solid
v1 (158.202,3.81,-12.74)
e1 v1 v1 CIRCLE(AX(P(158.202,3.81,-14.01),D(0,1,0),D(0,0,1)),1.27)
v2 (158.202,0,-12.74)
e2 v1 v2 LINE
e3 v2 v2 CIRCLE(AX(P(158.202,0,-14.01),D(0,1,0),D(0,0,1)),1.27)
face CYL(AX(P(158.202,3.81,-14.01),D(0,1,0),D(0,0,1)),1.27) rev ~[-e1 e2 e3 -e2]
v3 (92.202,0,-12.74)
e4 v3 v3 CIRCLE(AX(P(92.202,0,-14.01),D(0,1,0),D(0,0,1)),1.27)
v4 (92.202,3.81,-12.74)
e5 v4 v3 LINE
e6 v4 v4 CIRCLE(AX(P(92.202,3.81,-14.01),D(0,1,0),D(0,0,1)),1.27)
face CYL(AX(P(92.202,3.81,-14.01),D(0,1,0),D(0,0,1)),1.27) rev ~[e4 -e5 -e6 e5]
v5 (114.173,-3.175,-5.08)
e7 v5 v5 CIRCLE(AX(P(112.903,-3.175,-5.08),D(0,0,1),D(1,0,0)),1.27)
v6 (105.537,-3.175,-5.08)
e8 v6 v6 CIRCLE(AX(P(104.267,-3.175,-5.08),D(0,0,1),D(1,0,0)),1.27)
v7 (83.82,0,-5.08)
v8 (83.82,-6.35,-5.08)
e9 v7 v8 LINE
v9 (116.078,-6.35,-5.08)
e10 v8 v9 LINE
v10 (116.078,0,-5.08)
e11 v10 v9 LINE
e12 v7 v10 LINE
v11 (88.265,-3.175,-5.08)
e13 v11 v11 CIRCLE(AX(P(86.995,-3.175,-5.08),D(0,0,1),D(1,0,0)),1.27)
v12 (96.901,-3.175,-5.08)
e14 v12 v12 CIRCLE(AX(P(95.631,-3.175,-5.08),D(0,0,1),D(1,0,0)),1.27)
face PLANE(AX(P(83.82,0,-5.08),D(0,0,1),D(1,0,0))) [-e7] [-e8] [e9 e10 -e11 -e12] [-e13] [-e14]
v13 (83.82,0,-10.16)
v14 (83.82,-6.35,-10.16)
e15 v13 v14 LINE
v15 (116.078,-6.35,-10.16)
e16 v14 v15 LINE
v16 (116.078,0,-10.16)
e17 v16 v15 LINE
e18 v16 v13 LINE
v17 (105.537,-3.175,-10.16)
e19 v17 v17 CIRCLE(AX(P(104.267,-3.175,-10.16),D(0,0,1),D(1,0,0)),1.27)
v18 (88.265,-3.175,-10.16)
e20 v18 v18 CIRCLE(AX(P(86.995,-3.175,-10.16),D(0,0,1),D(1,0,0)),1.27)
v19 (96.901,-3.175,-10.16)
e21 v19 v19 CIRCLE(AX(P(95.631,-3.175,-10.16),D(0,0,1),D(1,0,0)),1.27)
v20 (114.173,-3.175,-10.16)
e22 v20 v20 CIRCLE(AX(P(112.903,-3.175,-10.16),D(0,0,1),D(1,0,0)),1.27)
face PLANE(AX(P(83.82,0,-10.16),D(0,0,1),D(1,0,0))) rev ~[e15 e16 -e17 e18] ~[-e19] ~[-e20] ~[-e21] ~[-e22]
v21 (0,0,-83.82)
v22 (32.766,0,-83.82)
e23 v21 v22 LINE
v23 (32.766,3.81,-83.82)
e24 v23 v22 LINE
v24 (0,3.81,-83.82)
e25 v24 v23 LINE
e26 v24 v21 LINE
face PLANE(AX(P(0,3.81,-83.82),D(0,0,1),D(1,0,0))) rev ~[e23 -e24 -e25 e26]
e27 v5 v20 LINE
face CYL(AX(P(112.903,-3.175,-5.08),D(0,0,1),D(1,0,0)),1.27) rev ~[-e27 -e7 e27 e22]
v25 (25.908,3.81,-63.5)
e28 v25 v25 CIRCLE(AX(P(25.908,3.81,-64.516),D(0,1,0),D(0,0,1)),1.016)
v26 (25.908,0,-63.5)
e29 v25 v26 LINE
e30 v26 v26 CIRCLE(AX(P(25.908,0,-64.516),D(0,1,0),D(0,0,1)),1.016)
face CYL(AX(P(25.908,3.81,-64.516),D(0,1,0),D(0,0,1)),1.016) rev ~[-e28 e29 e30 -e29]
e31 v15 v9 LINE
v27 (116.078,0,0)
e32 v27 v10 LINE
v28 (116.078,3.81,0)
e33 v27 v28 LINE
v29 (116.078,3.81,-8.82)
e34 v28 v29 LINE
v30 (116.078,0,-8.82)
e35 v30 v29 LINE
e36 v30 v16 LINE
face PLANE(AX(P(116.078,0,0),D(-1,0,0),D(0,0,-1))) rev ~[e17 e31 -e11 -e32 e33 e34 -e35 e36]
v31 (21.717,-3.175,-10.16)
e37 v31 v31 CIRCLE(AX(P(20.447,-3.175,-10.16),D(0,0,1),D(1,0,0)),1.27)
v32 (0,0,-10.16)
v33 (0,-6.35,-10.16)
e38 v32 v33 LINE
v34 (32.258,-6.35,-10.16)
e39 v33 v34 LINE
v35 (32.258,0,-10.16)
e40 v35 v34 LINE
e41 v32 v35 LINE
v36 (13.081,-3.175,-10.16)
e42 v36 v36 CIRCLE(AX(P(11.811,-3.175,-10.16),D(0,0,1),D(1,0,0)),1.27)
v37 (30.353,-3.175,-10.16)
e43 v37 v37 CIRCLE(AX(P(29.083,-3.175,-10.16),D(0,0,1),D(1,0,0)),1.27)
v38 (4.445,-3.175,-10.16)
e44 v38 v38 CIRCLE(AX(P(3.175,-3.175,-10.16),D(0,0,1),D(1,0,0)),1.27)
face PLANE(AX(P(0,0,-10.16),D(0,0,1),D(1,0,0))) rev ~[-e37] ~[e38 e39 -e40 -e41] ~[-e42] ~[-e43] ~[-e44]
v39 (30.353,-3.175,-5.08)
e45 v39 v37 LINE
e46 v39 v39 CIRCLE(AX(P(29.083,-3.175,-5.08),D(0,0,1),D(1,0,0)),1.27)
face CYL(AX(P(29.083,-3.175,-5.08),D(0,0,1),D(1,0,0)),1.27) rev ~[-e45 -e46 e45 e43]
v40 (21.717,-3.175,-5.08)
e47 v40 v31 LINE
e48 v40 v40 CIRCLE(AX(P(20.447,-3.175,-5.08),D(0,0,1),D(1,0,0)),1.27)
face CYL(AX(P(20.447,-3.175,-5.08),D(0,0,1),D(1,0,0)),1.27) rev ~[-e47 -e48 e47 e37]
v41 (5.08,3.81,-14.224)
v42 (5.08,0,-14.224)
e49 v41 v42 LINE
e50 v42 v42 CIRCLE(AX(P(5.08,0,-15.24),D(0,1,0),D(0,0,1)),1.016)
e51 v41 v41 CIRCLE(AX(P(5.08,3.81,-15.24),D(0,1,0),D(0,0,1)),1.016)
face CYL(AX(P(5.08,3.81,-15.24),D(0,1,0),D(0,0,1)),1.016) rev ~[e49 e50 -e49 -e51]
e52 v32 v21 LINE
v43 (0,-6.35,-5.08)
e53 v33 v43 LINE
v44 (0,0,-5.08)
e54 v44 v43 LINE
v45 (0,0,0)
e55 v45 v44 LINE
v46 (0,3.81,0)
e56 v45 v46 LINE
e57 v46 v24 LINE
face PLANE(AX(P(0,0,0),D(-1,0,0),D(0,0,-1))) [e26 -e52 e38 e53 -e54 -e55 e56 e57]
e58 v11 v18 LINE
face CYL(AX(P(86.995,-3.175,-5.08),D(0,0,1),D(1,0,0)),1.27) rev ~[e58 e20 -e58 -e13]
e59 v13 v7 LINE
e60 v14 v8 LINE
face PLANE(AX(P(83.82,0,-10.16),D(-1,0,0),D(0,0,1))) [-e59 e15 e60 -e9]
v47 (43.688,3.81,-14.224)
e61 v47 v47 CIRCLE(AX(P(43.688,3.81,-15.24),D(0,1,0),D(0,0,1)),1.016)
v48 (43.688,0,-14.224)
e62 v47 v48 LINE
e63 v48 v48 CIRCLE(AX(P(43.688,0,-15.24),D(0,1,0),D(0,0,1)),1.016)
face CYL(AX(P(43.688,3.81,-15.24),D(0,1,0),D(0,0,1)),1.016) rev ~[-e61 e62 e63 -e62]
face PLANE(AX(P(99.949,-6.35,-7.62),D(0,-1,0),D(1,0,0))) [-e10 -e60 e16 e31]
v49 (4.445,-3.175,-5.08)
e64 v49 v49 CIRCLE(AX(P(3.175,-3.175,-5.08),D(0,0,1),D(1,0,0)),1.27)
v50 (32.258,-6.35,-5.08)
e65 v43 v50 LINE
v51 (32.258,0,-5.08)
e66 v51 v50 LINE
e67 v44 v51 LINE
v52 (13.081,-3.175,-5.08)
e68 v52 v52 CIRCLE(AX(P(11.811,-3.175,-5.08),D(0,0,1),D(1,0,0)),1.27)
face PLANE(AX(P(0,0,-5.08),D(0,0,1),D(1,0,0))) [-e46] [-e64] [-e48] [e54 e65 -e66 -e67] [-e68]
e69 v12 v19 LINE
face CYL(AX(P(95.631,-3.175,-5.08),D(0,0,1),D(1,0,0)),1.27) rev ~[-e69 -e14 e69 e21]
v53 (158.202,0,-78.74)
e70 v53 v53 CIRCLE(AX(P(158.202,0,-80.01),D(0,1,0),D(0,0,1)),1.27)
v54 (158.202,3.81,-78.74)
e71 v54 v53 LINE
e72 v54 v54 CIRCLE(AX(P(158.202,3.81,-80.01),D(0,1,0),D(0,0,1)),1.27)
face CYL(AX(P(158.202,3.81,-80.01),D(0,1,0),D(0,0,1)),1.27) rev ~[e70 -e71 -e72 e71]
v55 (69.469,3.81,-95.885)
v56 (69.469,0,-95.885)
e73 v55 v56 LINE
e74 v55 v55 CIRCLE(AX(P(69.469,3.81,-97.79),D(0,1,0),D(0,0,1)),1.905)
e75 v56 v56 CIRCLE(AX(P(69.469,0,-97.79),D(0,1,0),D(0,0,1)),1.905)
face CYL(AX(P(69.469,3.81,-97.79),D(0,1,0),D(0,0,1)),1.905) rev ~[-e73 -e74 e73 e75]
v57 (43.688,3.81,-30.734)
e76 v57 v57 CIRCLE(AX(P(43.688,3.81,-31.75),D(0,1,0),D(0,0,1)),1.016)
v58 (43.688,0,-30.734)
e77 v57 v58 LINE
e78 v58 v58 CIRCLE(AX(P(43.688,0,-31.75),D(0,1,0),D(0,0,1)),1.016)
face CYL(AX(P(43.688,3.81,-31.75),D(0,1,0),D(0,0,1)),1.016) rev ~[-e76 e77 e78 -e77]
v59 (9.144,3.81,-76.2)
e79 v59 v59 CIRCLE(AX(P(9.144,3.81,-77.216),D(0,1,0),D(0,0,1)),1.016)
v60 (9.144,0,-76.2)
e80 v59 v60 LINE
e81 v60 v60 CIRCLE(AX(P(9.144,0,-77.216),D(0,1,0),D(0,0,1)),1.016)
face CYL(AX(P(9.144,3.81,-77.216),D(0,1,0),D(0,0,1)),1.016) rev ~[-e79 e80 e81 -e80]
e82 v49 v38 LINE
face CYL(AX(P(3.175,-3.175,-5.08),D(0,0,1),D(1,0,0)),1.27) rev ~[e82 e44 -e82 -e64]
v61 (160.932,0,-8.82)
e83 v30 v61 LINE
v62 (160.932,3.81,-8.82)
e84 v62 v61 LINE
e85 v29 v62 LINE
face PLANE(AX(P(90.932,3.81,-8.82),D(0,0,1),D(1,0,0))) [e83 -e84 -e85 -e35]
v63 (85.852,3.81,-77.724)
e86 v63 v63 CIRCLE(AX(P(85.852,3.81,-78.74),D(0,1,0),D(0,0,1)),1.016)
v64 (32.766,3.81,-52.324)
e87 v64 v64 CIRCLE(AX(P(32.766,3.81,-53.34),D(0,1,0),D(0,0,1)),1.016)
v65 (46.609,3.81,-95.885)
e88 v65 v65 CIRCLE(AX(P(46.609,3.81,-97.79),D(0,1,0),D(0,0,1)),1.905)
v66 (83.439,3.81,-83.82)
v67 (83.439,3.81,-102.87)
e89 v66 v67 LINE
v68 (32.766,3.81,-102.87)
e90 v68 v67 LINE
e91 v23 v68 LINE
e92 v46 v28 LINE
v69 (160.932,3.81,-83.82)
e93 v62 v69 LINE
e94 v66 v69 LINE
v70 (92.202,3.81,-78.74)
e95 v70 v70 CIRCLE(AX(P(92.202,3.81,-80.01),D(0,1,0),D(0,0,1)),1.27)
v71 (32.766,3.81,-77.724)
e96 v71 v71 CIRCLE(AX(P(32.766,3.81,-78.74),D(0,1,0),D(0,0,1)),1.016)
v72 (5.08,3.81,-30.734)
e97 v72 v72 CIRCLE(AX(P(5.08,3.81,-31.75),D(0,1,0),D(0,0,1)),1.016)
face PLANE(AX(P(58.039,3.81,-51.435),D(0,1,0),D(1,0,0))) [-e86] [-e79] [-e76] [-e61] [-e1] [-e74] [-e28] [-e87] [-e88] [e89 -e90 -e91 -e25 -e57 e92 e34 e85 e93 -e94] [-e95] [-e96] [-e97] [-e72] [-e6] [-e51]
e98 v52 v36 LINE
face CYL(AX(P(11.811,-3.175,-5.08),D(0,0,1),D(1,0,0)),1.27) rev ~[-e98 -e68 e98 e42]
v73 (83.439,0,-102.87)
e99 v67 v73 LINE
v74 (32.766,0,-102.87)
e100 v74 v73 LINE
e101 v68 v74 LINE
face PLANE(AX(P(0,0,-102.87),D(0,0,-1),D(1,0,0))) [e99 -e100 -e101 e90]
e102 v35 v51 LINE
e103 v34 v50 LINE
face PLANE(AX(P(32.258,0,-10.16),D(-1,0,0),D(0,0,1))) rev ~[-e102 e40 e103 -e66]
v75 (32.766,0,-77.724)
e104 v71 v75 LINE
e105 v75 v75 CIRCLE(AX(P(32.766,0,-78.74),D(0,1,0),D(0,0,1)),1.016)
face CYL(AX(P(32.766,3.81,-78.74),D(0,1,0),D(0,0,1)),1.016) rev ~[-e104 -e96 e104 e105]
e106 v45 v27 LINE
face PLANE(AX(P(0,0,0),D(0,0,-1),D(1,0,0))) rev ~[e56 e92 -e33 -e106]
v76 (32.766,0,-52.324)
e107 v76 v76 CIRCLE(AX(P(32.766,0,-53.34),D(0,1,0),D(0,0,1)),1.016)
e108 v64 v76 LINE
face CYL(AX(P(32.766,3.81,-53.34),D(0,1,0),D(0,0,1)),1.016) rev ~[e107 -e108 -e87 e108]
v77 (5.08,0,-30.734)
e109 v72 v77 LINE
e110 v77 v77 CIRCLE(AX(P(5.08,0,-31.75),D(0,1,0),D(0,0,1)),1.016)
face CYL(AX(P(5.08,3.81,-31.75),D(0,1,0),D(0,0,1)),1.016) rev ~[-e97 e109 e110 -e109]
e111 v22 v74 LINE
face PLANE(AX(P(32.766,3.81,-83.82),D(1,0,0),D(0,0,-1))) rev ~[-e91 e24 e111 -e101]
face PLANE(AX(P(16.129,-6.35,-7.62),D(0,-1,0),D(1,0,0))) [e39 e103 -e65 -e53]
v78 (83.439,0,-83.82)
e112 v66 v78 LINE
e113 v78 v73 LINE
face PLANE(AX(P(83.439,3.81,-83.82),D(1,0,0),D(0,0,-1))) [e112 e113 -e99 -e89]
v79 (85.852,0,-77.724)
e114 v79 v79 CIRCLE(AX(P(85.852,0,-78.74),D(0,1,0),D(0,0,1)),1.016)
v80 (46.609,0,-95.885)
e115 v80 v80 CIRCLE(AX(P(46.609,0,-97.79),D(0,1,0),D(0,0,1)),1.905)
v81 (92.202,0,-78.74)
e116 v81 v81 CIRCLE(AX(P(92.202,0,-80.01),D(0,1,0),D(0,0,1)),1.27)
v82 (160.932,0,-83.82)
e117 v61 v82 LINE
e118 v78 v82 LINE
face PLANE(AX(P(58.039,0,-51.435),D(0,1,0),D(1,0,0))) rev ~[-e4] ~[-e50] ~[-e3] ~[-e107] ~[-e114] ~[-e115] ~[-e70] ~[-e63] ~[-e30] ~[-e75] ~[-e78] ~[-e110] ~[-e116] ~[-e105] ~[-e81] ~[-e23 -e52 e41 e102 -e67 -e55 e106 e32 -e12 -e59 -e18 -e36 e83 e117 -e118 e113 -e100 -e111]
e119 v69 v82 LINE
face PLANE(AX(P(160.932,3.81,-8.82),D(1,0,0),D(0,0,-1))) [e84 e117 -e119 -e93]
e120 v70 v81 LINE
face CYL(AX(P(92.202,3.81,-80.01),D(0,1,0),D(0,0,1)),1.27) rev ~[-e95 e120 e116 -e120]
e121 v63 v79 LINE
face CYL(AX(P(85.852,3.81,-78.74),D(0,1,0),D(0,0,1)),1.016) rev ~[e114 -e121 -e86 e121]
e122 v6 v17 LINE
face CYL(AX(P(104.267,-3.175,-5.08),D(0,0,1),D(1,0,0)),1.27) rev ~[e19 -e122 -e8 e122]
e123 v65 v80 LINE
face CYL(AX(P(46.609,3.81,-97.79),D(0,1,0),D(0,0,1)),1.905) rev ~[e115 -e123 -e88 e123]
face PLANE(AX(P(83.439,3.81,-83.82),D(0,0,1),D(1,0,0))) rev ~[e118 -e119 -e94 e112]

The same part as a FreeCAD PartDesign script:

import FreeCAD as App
import Part
import Sketcher
Q = App.Units.Quantity


def add_polygon(sketch, points):
    """Adds a closed chain of lines whose ends are joined by coincident constraints."""
    first, n = sketch.GeometryCount, len(points)
    for a, b in zip(points, points[1:] + points[:1]):
        sketch.addGeometry(Part.LineSegment(App.Vector(*a, 0), App.Vector(*b, 0)), False)
    for i in range(n):
        sketch.addConstraint(Sketcher.Constraint("Coincident", first + i, 2, first + (i + 1) % n, 1))

doc = App.newDocument("Part")
body = doc.addObject("PartDesign::Body", "Body")

# Sketch on XZ plane
sketch1 = body.newObject("Sketcher::SketchObject", "Sketch")
sketch1.AttachmentSupport = (doc.getObject("XZ_Plane"), [""])
sketch1.MapMode = "FlatFace"
add_polygon(sketch1, [(0, -102.87), (0, 0), (116.078, 0), (116.078, -102.87)])  # lines 0-3
sketch1.addConstraint([
    Sketcher.Constraint("Vertical", 0),
    Sketcher.Constraint("Horizontal", 1),
    Sketcher.Constraint("Vertical", 2),
    Sketcher.Constraint("Horizontal", 3),
    Sketcher.Constraint("Coincident", 0, 2, -1, 1),
    Sketcher.Constraint("DistanceX", 1, 1, 1, 2, Q("4.57 in")),
    Sketcher.Constraint("DistanceY", 0, 1, 0, 2, Q("4.05 in")),
])
pad1 = body.newObject("PartDesign::Pad", "Pad")
pad1.Profile = sketch1
pad1.Length = Q("0.15 in")
pad1.Reversed = True

# Sketch on XZ plane
sketch2 = body.newObject("Sketcher::SketchObject", "Sketch001")
sketch2.AttachmentSupport = (doc.getObject("XZ_Plane"), [""])
sketch2.MapMode = "FlatFace"
sketch2.AttachmentOffset = App.Placement(App.Vector(0, 0, -0.15 * 25.4), App.Rotation())
sketch2.addGeometry(Part.Circle(App.Vector(46.609, -97.79, 0), App.Vector(0, 0, 1), 1.905), False)  # 0
sketch2.addGeometry(Part.Circle(App.Vector(69.469, -97.79, 0), App.Vector(0, 0, 1), 1.905), False)  # 1
add_polygon(sketch2, [(0, -102.87), (0, -83.82), (32.766, -83.82), (32.766, -102.87)])  # lines 2-5
add_polygon(sketch2, [(83.439, -102.87), (83.439, -83.82), (116.078, -83.82), (116.078, -102.87)])  # lines 6-9
sketch2.addConstraint([
    Sketcher.Constraint("Vertical", 2),
    Sketcher.Constraint("Horizontal", 3),
    Sketcher.Constraint("Vertical", 4),
    Sketcher.Constraint("Horizontal", 5),
    Sketcher.Constraint("Vertical", 6),
    Sketcher.Constraint("Horizontal", 7),
    Sketcher.Constraint("Vertical", 8),
    Sketcher.Constraint("Horizontal", 9),
    Sketcher.Constraint("Equal", 0, 1),
    Sketcher.Constraint("PointOnObject", 2, 2, -2),
    Sketcher.Constraint("Horizontal", 0, 3, 1, 3),
    Sketcher.Constraint("Horizontal", 3, 2, 6, 2),
    Sketcher.Constraint("Horizontal", 5, 2, 8, 2),
    Sketcher.Constraint("Diameter", 0, Q("0.15 in")),
    Sketcher.Constraint("DistanceX", 3, 1, 3, 2, Q("1.29 in")),
    Sketcher.Constraint("DistanceY", 2, 1, 2, 2, Q("0.75 in")),
    Sketcher.Constraint("DistanceY", 2, 2, -1, 1, Q("3.3 in")),
    Sketcher.Constraint("DistanceX", 0, 3, 1, 3, Q("0.9 in")),
    Sketcher.Constraint("DistanceY", 4, 2, 0, 3, Q("0.2 in")),
    Sketcher.Constraint("DistanceX", 7, 1, 7, 2, Q("1.285 in")),
    Sketcher.Constraint("DistanceX", -1, 1, 7, 2, Q("4.57 in")),
    Sketcher.Constraint("DistanceX", 1, 3, 6, 2, Q("0.55 in")),
])
pocket1 = body.newObject("PartDesign::Pocket", "Pocket")
pocket1.Profile = sketch2
pocket1.Length = Q("0.15 in")
pocket1.Reversed = True

# Sketch on XZ plane
sketch3 = body.newObject("Sketcher::SketchObject", "Sketch002")
sketch3.AttachmentSupport = (doc.getObject("XZ_Plane"), [""])
sketch3.MapMode = "FlatFace"
add_polygon(sketch3, [(0, -5.08), (0, -10.16), (32.258, -10.16), (32.258, -5.08)])  # lines 0-3
add_polygon(sketch3, [(83.82, -5.08), (83.82, -10.16), (116.078, -10.16), (116.078, -5.08)])  # lines 4-7
sketch3.addConstraint([
    Sketcher.Constraint("Vertical", 0),
    Sketcher.Constraint("Horizontal", 1),
    Sketcher.Constraint("Vertical", 2),
    Sketcher.Constraint("Horizontal", 3),
    Sketcher.Constraint("Vertical", 4),
    Sketcher.Constraint("Horizontal", 5),
    Sketcher.Constraint("Vertical", 6),
    Sketcher.Constraint("Horizontal", 7),
    Sketcher.Constraint("PointOnObject", 0, 2, -2),
    Sketcher.Constraint("Horizontal", 1, 2, 4, 2),
    Sketcher.Constraint("Horizontal", 3, 2, 6, 2),
    Sketcher.Constraint("Equal", 3, 5),
    Sketcher.Constraint("DistanceY", 0, 2, 0, 1, Q("0.2 in")),
    Sketcher.Constraint("DistanceX", 1, 1, 1, 2, Q("1.27 in")),
    Sketcher.Constraint("DistanceY", 0, 2, -1, 1, Q("0.4 in")),
    Sketcher.Constraint("DistanceX", -1, 1, 4, 2, Q("3.3 in")),
])
pad2 = body.newObject("PartDesign::Pad", "Pad001")
pad2.Profile = sketch3
pad2.Length = Q("0.25 in")

# Sketch on XY plane
sketch4 = body.newObject("Sketcher::SketchObject", "Sketch003")
sketch4.AttachmentSupport = (doc.getObject("XY_Plane"), [""])
sketch4.MapMode = "FlatFace"
sketch4.AttachmentOffset = App.Placement(App.Vector(0, 0, -0.2 * 25.4), App.Rotation())
sketch4.addGeometry([
    Part.Circle(App.Vector(3.175, -3.175, 0), App.Vector(0, 0, 1), 1.27),  # 0
    Part.Circle(App.Vector(11.811, -3.175, 0), App.Vector(0, 0, 1), 1.27),  # 1
    Part.Circle(App.Vector(20.447, -3.175, 0), App.Vector(0, 0, 1), 1.27),  # 2
    Part.Circle(App.Vector(29.083, -3.175, 0), App.Vector(0, 0, 1), 1.27),  # 3
    Part.Circle(App.Vector(86.995, -3.175, 0), App.Vector(0, 0, 1), 1.27),  # 4
    Part.Circle(App.Vector(95.631, -3.175, 0), App.Vector(0, 0, 1), 1.27),  # 5
    Part.Circle(App.Vector(104.267, -3.175, 0), App.Vector(0, 0, 1), 1.27),  # 6
    Part.Circle(App.Vector(112.903, -3.175, 0), App.Vector(0, 0, 1), 1.27),  # 7
], False)
sketch4.addConstraint([
    Sketcher.Constraint("Equal", 0, 1),
    Sketcher.Constraint("Equal", 1, 2),
    Sketcher.Constraint("Equal", 2, 3),
    Sketcher.Constraint("Equal", 3, 4),
    Sketcher.Constraint("Equal", 4, 5),
    Sketcher.Constraint("Equal", 5, 6),
    Sketcher.Constraint("Equal", 6, 7),
    Sketcher.Constraint("Horizontal", 0, 3, 1, 3),
    Sketcher.Constraint("Horizontal", 1, 3, 2, 3),
    Sketcher.Constraint("Horizontal", 2, 3, 3, 3),
    Sketcher.Constraint("Horizontal", 3, 3, 4, 3),
    Sketcher.Constraint("Horizontal", 4, 3, 5, 3),
    Sketcher.Constraint("Horizontal", 5, 3, 6, 3),
    Sketcher.Constraint("Horizontal", 6, 3, 7, 3),
    Sketcher.Constraint("Diameter", 0, Q("0.1 in")),
    Sketcher.Constraint("DistanceX", 0, 3, 4, 3, Q("3.3 in")),
    Sketcher.Constraint("DistanceX", 1, 3, 5, 3, Q("3.3 in")),
    Sketcher.Constraint("DistanceX", 2, 3, 6, 3, Q("3.3 in")),
    Sketcher.Constraint("DistanceX", 3, 3, 7, 3, Q("3.3 in")),
    Sketcher.Constraint("DistanceX", 0, 3, 1, 3, Q("0.34 in")),
    Sketcher.Constraint("DistanceX", 1, 3, 2, 3, Q("0.34 in")),
    Sketcher.Constraint("DistanceX", 2, 3, 3, 3, Q("0.34 in")),
    Sketcher.Constraint("DistanceX", -1, 1, 0, 3, Q("0.125 in")),
    Sketcher.Constraint("DistanceY", 0, 3, -1, 1, Q("0.125 in")),
])
pocket2 = body.newObject("PartDesign::Pocket", "Pocket001")
pocket2.Profile = sketch4
pocket2.Length = Q("0.2 in")

# Sketch on XZ plane
sketch5 = body.newObject("Sketcher::SketchObject", "Sketch004")
sketch5.AttachmentSupport = (doc.getObject("XZ_Plane"), [""])
sketch5.MapMode = "FlatFace"
sketch5.AttachmentOffset = App.Placement(App.Vector(0, 0, -0.15 * 25.4), App.Rotation())
sketch5.addGeometry([
    Part.Circle(App.Vector(25.908, -64.516, 0), App.Vector(0, 0, 1), 1.016),  # 0
    Part.Circle(App.Vector(9.144, -77.216, 0), App.Vector(0, 0, 1), 1.016),  # 1
    Part.Circle(App.Vector(32.766, -78.74, 0), App.Vector(0, 0, 1), 1.016),  # 2
    Part.Circle(App.Vector(85.852, -78.74, 0), App.Vector(0, 0, 1), 1.016),  # 3
    Part.Circle(App.Vector(32.766, -53.34, 0), App.Vector(0, 0, 1), 1.016),  # 4
    Part.Circle(App.Vector(5.08, -31.75, 0), App.Vector(0, 0, 1), 1.016),  # 5
    Part.Circle(App.Vector(43.688, -31.75, 0), App.Vector(0, 0, 1), 1.016),  # 6
    Part.Circle(App.Vector(5.08, -15.24, 0), App.Vector(0, 0, 1), 1.016),  # 7
    Part.Circle(App.Vector(43.688, -15.24, 0), App.Vector(0, 0, 1), 1.016),  # 8
], False)
sketch5.addConstraint([
    Sketcher.Constraint("Equal", 0, 1),
    Sketcher.Constraint("Equal", 1, 2),
    Sketcher.Constraint("Equal", 2, 3),
    Sketcher.Constraint("Equal", 3, 4),
    Sketcher.Constraint("Equal", 4, 5),
    Sketcher.Constraint("Equal", 5, 6),
    Sketcher.Constraint("Equal", 6, 7),
    Sketcher.Constraint("Equal", 7, 8),
    Sketcher.Constraint("Horizontal", 2, 3, 3, 3),
    Sketcher.Constraint("Horizontal", 5, 3, 6, 3),
    Sketcher.Constraint("Horizontal", 7, 3, 8, 3),
    Sketcher.Constraint("Vertical", 2, 3, 4, 3),
    Sketcher.Constraint("Vertical", 5, 3, 7, 3),
    Sketcher.Constraint("Vertical", 6, 3, 8, 3),
    Sketcher.Constraint("Diameter", 0, Q("0.08 in")),
    Sketcher.Constraint("DistanceY", 2, 3, 4, 3, Q("1 in")),
    Sketcher.Constraint("DistanceY", 2, 3, -1, 1, Q("3.1 in")),
    Sketcher.Constraint("DistanceX", -1, 1, 5, 3, Q("0.2 in")),
    Sketcher.Constraint("DistanceY", 7, 3, -1, 1, Q("0.6 in")),
    Sketcher.Constraint("DistanceY", 1, 3, 0, 3, Q("0.5 in")),
    Sketcher.Constraint("DistanceX", 0, 3, 6, 3, Q("0.7 in")),
    Sketcher.Constraint("DistanceX", -1, 1, 0, 3, Q("1.02 in")),
    Sketcher.Constraint("DistanceY", 0, 3, -1, 1, Q("2.54 in")),
    Sketcher.Constraint("DistanceX", -1, 1, 1, 3, Q("0.36 in")),
    Sketcher.Constraint("DistanceX", -1, 1, 2, 3, Q("1.29 in")),
    Sketcher.Constraint("DistanceX", -1, 1, 3, 3, Q("3.38 in")),
    Sketcher.Constraint("DistanceY", 5, 3, -1, 1, Q("1.25 in")),
])
pocket3 = body.newObject("PartDesign::Pocket", "Pocket002")
pocket3.Profile = sketch5
pocket3.Length = Q("0.15 in")
pocket3.Reversed = True

# Sketch on XZ plane
sketch6 = body.newObject("Sketcher::SketchObject", "Sketch005")
sketch6.AttachmentSupport = (doc.getObject("XZ_Plane"), [""])
sketch6.MapMode = "FlatFace"
sketch6.AttachmentOffset = App.Placement(App.Vector(0, 0, -0.15 * 25.4), App.Rotation())
add_polygon(sketch6, [(90.932, -83.82), (90.932, -8.82), (160.932, -8.82), (160.932, -83.82)])  # lines 0-3
sketch6.addConstraint([
    Sketcher.Constraint("Vertical", 0),
    Sketcher.Constraint("Horizontal", 1),
    Sketcher.Constraint("Vertical", 2),
    Sketcher.Constraint("Horizontal", 3),
    Sketcher.Constraint("DistanceY", 2, 2, -1, 1, Q("3.3 in")),
    Sketcher.Constraint("DistanceX", -1, 1, 0, 2, Q("3.58 in")),
    Sketcher.Constraint("DistanceX", 1, 1, 1, 2, 70.0),
    Sketcher.Constraint("DistanceY", 0, 1, 0, 2, 75.0),
])
pad3 = body.newObject("PartDesign::Pad", "Pad002")
pad3.Profile = sketch6
pad3.Length = Q("0.15 in")

# Sketch on XZ plane
sketch7 = body.newObject("Sketcher::SketchObject", "Sketch006")
sketch7.AttachmentSupport = (doc.getObject("XZ_Plane"), [""])
sketch7.MapMode = "FlatFace"
sketch7.AttachmentOffset = App.Placement(App.Vector(0, 0, -0.15 * 25.4), App.Rotation())
sketch7.addGeometry([
    Part.Circle(App.Vector(92.202, -14.01, 0), App.Vector(0, 0, 1), 1.27),
    Part.Circle(App.Vector(92.202, -80.01, 0), App.Vector(0, 0, 1), 1.27),
    Part.Circle(App.Vector(158.202, -80.01, 0), App.Vector(0, 0, 1), 1.27),
    Part.Circle(App.Vector(158.202, -14.01, 0), App.Vector(0, 0, 1), 1.27),
], False)
sketch7.addConstraint([
    Sketcher.Constraint("Equal", 0, 1),
    Sketcher.Constraint("Equal", 1, 2),
    Sketcher.Constraint("Equal", 2, 3),
    Sketcher.Constraint("Horizontal", 1, 3, 2, 3),
    Sketcher.Constraint("Horizontal", 0, 3, 3, 3),
    Sketcher.Constraint("Vertical", 0, 3, 1, 3),
    Sketcher.Constraint("Vertical", 2, 3, 3, 3),
    Sketcher.Constraint("Diameter", 0, Q("0.1 in")),
    Sketcher.Constraint("DistanceX", -1, 1, 0, 3, Q("3.63 in")),
    Sketcher.Constraint("DistanceY", 1, 3, -1, 1, Q("3.15 in")),
    Sketcher.Constraint("DistanceY", 0, 3, -1, 1, 14.01),
    Sketcher.Constraint("DistanceX", -1, 1, 2, 3, 158.202),
])
pocket4 = body.newObject("PartDesign::Pocket", "Pocket003")
pocket4.Profile = sketch7
pocket4.Length = Q("0.15 in")
pocket4.Reversed = True

doc.recompute()
